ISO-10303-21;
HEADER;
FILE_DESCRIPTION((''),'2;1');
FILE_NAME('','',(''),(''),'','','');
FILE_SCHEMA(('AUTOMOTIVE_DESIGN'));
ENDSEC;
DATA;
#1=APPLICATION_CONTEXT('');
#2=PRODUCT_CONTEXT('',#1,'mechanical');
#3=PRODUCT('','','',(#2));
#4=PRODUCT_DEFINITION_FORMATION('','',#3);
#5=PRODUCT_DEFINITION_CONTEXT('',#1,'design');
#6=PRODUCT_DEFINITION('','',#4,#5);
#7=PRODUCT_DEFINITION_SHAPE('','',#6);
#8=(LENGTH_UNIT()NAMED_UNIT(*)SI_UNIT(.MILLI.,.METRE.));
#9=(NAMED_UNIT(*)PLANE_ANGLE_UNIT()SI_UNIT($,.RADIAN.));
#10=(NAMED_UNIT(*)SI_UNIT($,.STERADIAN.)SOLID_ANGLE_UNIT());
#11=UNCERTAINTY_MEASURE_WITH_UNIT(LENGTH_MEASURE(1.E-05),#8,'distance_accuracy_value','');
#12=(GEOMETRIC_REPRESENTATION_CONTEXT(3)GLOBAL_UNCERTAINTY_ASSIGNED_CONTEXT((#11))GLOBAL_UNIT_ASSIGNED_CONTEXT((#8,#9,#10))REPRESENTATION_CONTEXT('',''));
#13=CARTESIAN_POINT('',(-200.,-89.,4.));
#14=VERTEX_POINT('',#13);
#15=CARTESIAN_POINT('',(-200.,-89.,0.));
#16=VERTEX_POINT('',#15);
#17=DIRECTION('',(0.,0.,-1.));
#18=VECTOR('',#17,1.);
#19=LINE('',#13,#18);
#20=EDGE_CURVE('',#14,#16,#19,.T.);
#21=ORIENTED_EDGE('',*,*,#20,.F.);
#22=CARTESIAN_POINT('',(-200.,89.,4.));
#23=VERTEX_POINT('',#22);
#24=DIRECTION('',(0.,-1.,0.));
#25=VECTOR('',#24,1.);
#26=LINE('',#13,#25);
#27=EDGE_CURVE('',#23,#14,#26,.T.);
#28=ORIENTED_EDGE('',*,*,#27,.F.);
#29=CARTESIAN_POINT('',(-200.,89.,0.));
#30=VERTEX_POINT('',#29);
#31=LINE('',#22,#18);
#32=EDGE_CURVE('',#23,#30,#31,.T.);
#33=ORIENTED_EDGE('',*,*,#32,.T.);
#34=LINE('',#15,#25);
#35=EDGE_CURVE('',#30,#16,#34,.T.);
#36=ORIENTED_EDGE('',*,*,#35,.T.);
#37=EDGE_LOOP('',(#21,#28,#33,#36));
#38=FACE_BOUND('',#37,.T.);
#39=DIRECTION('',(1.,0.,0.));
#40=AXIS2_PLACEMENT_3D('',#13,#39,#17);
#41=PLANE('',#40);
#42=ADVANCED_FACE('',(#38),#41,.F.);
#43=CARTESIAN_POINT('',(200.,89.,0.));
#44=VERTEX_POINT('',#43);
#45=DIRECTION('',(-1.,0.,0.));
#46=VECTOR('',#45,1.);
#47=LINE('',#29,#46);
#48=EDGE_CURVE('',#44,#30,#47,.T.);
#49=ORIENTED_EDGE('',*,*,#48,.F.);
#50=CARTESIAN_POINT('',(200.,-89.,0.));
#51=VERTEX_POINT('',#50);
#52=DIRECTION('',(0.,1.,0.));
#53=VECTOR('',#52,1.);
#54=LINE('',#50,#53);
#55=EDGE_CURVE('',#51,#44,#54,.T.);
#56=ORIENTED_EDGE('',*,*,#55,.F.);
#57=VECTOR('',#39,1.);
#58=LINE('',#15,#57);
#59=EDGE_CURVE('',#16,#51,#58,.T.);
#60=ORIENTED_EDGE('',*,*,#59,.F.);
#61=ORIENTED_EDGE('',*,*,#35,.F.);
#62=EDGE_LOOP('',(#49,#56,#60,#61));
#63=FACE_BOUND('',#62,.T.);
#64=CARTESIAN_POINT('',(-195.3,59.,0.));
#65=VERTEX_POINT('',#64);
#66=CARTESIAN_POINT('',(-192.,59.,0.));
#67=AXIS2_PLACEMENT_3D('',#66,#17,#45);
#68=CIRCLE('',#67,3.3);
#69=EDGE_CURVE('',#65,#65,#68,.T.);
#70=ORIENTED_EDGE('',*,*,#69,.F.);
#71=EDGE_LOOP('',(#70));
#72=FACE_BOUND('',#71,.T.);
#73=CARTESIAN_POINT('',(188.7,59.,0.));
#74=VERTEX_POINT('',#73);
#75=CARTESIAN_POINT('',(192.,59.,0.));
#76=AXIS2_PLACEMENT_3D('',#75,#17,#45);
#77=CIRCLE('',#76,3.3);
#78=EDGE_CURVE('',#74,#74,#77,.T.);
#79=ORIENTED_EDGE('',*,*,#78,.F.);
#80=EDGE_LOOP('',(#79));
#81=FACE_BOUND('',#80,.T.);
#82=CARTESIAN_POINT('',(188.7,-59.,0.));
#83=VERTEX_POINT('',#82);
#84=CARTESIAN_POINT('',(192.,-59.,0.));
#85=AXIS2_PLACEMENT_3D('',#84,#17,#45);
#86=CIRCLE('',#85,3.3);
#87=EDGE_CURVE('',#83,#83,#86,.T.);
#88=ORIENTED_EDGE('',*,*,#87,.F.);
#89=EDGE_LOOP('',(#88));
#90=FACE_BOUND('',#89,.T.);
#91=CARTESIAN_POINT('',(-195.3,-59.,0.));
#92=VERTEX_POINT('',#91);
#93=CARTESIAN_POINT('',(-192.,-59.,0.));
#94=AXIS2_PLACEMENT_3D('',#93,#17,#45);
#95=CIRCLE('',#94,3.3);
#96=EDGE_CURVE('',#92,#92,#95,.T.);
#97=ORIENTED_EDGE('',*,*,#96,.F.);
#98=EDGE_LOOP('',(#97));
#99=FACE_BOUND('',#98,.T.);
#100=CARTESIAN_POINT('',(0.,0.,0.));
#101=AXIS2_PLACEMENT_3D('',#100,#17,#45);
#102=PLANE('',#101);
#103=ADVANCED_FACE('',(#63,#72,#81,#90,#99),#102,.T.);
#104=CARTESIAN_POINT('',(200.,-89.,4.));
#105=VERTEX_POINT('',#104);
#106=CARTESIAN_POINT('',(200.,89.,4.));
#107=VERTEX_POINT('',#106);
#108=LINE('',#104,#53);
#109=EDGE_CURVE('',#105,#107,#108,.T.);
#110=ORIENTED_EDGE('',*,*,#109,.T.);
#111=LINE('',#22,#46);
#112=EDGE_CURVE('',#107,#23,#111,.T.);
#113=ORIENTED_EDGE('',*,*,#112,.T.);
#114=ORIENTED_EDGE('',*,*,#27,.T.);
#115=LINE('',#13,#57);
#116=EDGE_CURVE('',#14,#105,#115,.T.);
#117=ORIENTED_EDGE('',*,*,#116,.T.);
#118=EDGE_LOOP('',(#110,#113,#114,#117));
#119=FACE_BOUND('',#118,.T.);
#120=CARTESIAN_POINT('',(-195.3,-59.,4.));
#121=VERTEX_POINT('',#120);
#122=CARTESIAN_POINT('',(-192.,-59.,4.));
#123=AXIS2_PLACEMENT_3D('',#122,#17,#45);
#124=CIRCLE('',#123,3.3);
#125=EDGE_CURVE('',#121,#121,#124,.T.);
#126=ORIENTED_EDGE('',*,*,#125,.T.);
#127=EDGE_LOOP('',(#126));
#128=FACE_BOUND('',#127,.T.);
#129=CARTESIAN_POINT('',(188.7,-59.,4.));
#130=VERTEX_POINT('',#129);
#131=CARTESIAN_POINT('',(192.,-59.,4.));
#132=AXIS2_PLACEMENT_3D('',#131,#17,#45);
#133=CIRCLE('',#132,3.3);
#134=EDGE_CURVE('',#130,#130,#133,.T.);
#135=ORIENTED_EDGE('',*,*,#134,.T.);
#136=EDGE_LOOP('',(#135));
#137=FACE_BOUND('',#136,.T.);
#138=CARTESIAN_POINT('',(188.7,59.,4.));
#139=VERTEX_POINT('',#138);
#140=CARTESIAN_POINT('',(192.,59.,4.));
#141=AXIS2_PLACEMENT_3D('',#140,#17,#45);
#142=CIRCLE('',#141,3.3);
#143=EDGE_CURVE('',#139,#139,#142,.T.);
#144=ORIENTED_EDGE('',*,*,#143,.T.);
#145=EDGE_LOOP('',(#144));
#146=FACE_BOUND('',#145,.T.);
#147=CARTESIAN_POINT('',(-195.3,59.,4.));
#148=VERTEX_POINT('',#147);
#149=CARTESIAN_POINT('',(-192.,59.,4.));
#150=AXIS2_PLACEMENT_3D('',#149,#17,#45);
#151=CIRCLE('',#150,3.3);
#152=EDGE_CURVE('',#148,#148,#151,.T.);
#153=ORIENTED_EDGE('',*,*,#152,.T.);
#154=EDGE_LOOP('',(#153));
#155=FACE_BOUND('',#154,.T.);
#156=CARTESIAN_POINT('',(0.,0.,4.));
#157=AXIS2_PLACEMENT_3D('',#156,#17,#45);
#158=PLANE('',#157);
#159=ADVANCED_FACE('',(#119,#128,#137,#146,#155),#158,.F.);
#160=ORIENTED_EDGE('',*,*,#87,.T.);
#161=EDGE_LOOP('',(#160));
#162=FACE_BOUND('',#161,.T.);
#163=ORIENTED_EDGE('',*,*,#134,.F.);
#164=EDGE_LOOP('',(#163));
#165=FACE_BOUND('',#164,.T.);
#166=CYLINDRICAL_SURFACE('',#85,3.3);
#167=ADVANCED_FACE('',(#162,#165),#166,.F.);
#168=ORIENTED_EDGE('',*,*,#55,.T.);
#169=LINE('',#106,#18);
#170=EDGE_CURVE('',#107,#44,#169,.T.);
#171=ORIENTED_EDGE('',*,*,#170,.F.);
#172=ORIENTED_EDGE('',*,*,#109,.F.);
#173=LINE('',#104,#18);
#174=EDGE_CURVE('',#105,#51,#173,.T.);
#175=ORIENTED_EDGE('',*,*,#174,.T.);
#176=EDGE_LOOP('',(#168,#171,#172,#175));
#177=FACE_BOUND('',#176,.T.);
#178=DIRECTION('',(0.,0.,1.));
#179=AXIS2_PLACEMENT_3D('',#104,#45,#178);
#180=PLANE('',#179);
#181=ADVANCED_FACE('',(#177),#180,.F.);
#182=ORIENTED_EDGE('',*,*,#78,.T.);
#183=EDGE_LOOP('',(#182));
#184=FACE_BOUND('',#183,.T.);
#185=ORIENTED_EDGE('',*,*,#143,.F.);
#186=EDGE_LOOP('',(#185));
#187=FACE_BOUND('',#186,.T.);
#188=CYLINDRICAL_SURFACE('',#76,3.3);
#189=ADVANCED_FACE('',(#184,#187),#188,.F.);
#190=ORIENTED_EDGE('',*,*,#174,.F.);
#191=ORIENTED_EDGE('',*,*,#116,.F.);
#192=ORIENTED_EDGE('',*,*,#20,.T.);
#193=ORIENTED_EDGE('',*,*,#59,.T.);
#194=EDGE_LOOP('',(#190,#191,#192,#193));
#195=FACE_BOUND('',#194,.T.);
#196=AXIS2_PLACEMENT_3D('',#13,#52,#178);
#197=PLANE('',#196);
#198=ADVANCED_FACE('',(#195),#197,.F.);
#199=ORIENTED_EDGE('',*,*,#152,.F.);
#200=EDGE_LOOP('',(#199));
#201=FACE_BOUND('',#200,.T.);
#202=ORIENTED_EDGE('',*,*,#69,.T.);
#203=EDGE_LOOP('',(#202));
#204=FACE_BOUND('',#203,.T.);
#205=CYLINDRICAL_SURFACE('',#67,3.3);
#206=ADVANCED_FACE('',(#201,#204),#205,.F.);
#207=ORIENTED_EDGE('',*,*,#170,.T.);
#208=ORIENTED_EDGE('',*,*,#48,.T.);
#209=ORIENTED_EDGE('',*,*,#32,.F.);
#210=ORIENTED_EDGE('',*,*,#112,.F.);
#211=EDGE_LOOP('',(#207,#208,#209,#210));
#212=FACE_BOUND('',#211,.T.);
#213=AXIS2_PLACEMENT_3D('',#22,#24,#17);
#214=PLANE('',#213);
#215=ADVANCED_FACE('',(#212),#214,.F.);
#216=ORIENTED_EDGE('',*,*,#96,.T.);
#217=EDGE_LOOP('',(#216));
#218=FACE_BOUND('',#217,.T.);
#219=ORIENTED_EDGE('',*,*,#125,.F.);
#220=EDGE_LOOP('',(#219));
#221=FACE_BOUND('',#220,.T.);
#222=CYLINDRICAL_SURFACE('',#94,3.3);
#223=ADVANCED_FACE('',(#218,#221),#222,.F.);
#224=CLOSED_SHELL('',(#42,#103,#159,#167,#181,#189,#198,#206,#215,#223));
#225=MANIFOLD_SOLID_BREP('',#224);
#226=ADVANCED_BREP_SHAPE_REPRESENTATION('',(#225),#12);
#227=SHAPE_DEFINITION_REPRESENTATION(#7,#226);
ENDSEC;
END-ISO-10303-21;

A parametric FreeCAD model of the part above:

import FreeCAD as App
import Part
import Sketcher
from FreeCAD import Vector
Q = App.Units.Quantity


def add_polygon(sketch, points):
    """Adds a closed chain of lines whose ends are joined by coincident constraints."""
    first, n = sketch.GeometryCount, len(points)
    for a, b in zip(points, points[1:] + points[:1]):
        sketch.addGeometry(Part.LineSegment(App.Vector(*a, 0), App.Vector(*b, 0)), False)
    for i in range(n):
        sketch.addConstraint(Sketcher.Constraint("Coincident", first + i, 2, first + (i + 1) % n, 1))

doc = App.newDocument("Part")
body = doc.addObject("PartDesign::Body", "Body")

sketch1 = doc.addObject("Sketcher::SketchObject", "Sketch")
body.addObject(sketch1)
sketch1.AttachmentSupport = (doc.XY_Plane, [""])
sketch1.MapMode = "FlatFace"
add_polygon(sketch1, [(-200, 89), (-200, -89), (200, -89), (200, 89)])
sketch1.addConstraint(Sketcher.Constraint("Vertical", 0))
sketch1.addConstraint(Sketcher.Constraint("Horizontal", 1))
sketch1.addConstraint(Sketcher.Constraint("Vertical", 2))
sketch1.addConstraint(Sketcher.Constraint("Horizontal", 3))
sketch1.addConstraint(Sketcher.Constraint("Symmetric", 0, 2, 2, 2, -1, 1))
sketch1.addConstraint(Sketcher.Constraint("DistanceX", 1, 1, 1, 2, Q("400 mm")))
sketch1.addConstraint(Sketcher.Constraint("DistanceY", 0, 2, 0, 1, Q("178 mm")))
pad1 = doc.addObject("PartDesign::Pad", "Pad")
body.addObject(pad1)
pad1.Profile = sketch1
pad1.Length = 4

sketch2 = doc.addObject("Sketcher::SketchObject", "Sketch001")
body.addObject(sketch2)
sketch2.AttachmentSupport = (doc.XY_Plane, [""])
sketch2.MapMode = "FlatFace"
sketch2.addGeometry(Part.Circle(Vector(-192, 59, 0), Vector(0, 0, 1), 3.3), False)
sketch2.addGeometry(Part.Circle(Vector(-192, -59, 0), Vector(0, 0, 1), 3.3), False)
sketch2.addGeometry(Part.Circle(Vector(192, -59, 0), Vector(0, 0, 1), 3.3), False)
sketch2.addGeometry(Part.Circle(Vector(192, 59, 0), Vector(0, 0, 1), 3.3), False)
sketch2.addConstraint(Sketcher.Constraint("Equal", 0, 1))
sketch2.addConstraint(Sketcher.Constraint("Equal", 1, 2))
sketch2.addConstraint(Sketcher.Constraint("Equal", 2, 3))
sketch2.addConstraint(Sketcher.Constraint("Symmetric", 0, 3, 2, 3, -1, 1))
sketch2.addConstraint(Sketcher.Constraint("Symmetric", 1, 3, 3, 3, -1, 1))
sketch2.addConstraint(Sketcher.Constraint("Symmetric", 1, 3, 2, 3, -2))
sketch2.addConstraint(Sketcher.Constraint("Diameter", 0, Q("6.6 mm")))
sketch2.addConstraint(Sketcher.Constraint("DistanceX", 0, 3, -1, 1, Q("192 mm")))
sketch2.addConstraint(Sketcher.Constraint("DistanceY", -1, 1, 0, 3, Q("59 mm")))
doc.recompute()
hole = doc.addObject("PartDesign::Hole", "Hole")
body.addObject(hole)
hole.Profile = sketch2
hole.ThreadType = "None"
hole.Diameter = 6.6
hole.DepthType = "ThroughAll"
hole.Reversed = True

doc.recompute()
